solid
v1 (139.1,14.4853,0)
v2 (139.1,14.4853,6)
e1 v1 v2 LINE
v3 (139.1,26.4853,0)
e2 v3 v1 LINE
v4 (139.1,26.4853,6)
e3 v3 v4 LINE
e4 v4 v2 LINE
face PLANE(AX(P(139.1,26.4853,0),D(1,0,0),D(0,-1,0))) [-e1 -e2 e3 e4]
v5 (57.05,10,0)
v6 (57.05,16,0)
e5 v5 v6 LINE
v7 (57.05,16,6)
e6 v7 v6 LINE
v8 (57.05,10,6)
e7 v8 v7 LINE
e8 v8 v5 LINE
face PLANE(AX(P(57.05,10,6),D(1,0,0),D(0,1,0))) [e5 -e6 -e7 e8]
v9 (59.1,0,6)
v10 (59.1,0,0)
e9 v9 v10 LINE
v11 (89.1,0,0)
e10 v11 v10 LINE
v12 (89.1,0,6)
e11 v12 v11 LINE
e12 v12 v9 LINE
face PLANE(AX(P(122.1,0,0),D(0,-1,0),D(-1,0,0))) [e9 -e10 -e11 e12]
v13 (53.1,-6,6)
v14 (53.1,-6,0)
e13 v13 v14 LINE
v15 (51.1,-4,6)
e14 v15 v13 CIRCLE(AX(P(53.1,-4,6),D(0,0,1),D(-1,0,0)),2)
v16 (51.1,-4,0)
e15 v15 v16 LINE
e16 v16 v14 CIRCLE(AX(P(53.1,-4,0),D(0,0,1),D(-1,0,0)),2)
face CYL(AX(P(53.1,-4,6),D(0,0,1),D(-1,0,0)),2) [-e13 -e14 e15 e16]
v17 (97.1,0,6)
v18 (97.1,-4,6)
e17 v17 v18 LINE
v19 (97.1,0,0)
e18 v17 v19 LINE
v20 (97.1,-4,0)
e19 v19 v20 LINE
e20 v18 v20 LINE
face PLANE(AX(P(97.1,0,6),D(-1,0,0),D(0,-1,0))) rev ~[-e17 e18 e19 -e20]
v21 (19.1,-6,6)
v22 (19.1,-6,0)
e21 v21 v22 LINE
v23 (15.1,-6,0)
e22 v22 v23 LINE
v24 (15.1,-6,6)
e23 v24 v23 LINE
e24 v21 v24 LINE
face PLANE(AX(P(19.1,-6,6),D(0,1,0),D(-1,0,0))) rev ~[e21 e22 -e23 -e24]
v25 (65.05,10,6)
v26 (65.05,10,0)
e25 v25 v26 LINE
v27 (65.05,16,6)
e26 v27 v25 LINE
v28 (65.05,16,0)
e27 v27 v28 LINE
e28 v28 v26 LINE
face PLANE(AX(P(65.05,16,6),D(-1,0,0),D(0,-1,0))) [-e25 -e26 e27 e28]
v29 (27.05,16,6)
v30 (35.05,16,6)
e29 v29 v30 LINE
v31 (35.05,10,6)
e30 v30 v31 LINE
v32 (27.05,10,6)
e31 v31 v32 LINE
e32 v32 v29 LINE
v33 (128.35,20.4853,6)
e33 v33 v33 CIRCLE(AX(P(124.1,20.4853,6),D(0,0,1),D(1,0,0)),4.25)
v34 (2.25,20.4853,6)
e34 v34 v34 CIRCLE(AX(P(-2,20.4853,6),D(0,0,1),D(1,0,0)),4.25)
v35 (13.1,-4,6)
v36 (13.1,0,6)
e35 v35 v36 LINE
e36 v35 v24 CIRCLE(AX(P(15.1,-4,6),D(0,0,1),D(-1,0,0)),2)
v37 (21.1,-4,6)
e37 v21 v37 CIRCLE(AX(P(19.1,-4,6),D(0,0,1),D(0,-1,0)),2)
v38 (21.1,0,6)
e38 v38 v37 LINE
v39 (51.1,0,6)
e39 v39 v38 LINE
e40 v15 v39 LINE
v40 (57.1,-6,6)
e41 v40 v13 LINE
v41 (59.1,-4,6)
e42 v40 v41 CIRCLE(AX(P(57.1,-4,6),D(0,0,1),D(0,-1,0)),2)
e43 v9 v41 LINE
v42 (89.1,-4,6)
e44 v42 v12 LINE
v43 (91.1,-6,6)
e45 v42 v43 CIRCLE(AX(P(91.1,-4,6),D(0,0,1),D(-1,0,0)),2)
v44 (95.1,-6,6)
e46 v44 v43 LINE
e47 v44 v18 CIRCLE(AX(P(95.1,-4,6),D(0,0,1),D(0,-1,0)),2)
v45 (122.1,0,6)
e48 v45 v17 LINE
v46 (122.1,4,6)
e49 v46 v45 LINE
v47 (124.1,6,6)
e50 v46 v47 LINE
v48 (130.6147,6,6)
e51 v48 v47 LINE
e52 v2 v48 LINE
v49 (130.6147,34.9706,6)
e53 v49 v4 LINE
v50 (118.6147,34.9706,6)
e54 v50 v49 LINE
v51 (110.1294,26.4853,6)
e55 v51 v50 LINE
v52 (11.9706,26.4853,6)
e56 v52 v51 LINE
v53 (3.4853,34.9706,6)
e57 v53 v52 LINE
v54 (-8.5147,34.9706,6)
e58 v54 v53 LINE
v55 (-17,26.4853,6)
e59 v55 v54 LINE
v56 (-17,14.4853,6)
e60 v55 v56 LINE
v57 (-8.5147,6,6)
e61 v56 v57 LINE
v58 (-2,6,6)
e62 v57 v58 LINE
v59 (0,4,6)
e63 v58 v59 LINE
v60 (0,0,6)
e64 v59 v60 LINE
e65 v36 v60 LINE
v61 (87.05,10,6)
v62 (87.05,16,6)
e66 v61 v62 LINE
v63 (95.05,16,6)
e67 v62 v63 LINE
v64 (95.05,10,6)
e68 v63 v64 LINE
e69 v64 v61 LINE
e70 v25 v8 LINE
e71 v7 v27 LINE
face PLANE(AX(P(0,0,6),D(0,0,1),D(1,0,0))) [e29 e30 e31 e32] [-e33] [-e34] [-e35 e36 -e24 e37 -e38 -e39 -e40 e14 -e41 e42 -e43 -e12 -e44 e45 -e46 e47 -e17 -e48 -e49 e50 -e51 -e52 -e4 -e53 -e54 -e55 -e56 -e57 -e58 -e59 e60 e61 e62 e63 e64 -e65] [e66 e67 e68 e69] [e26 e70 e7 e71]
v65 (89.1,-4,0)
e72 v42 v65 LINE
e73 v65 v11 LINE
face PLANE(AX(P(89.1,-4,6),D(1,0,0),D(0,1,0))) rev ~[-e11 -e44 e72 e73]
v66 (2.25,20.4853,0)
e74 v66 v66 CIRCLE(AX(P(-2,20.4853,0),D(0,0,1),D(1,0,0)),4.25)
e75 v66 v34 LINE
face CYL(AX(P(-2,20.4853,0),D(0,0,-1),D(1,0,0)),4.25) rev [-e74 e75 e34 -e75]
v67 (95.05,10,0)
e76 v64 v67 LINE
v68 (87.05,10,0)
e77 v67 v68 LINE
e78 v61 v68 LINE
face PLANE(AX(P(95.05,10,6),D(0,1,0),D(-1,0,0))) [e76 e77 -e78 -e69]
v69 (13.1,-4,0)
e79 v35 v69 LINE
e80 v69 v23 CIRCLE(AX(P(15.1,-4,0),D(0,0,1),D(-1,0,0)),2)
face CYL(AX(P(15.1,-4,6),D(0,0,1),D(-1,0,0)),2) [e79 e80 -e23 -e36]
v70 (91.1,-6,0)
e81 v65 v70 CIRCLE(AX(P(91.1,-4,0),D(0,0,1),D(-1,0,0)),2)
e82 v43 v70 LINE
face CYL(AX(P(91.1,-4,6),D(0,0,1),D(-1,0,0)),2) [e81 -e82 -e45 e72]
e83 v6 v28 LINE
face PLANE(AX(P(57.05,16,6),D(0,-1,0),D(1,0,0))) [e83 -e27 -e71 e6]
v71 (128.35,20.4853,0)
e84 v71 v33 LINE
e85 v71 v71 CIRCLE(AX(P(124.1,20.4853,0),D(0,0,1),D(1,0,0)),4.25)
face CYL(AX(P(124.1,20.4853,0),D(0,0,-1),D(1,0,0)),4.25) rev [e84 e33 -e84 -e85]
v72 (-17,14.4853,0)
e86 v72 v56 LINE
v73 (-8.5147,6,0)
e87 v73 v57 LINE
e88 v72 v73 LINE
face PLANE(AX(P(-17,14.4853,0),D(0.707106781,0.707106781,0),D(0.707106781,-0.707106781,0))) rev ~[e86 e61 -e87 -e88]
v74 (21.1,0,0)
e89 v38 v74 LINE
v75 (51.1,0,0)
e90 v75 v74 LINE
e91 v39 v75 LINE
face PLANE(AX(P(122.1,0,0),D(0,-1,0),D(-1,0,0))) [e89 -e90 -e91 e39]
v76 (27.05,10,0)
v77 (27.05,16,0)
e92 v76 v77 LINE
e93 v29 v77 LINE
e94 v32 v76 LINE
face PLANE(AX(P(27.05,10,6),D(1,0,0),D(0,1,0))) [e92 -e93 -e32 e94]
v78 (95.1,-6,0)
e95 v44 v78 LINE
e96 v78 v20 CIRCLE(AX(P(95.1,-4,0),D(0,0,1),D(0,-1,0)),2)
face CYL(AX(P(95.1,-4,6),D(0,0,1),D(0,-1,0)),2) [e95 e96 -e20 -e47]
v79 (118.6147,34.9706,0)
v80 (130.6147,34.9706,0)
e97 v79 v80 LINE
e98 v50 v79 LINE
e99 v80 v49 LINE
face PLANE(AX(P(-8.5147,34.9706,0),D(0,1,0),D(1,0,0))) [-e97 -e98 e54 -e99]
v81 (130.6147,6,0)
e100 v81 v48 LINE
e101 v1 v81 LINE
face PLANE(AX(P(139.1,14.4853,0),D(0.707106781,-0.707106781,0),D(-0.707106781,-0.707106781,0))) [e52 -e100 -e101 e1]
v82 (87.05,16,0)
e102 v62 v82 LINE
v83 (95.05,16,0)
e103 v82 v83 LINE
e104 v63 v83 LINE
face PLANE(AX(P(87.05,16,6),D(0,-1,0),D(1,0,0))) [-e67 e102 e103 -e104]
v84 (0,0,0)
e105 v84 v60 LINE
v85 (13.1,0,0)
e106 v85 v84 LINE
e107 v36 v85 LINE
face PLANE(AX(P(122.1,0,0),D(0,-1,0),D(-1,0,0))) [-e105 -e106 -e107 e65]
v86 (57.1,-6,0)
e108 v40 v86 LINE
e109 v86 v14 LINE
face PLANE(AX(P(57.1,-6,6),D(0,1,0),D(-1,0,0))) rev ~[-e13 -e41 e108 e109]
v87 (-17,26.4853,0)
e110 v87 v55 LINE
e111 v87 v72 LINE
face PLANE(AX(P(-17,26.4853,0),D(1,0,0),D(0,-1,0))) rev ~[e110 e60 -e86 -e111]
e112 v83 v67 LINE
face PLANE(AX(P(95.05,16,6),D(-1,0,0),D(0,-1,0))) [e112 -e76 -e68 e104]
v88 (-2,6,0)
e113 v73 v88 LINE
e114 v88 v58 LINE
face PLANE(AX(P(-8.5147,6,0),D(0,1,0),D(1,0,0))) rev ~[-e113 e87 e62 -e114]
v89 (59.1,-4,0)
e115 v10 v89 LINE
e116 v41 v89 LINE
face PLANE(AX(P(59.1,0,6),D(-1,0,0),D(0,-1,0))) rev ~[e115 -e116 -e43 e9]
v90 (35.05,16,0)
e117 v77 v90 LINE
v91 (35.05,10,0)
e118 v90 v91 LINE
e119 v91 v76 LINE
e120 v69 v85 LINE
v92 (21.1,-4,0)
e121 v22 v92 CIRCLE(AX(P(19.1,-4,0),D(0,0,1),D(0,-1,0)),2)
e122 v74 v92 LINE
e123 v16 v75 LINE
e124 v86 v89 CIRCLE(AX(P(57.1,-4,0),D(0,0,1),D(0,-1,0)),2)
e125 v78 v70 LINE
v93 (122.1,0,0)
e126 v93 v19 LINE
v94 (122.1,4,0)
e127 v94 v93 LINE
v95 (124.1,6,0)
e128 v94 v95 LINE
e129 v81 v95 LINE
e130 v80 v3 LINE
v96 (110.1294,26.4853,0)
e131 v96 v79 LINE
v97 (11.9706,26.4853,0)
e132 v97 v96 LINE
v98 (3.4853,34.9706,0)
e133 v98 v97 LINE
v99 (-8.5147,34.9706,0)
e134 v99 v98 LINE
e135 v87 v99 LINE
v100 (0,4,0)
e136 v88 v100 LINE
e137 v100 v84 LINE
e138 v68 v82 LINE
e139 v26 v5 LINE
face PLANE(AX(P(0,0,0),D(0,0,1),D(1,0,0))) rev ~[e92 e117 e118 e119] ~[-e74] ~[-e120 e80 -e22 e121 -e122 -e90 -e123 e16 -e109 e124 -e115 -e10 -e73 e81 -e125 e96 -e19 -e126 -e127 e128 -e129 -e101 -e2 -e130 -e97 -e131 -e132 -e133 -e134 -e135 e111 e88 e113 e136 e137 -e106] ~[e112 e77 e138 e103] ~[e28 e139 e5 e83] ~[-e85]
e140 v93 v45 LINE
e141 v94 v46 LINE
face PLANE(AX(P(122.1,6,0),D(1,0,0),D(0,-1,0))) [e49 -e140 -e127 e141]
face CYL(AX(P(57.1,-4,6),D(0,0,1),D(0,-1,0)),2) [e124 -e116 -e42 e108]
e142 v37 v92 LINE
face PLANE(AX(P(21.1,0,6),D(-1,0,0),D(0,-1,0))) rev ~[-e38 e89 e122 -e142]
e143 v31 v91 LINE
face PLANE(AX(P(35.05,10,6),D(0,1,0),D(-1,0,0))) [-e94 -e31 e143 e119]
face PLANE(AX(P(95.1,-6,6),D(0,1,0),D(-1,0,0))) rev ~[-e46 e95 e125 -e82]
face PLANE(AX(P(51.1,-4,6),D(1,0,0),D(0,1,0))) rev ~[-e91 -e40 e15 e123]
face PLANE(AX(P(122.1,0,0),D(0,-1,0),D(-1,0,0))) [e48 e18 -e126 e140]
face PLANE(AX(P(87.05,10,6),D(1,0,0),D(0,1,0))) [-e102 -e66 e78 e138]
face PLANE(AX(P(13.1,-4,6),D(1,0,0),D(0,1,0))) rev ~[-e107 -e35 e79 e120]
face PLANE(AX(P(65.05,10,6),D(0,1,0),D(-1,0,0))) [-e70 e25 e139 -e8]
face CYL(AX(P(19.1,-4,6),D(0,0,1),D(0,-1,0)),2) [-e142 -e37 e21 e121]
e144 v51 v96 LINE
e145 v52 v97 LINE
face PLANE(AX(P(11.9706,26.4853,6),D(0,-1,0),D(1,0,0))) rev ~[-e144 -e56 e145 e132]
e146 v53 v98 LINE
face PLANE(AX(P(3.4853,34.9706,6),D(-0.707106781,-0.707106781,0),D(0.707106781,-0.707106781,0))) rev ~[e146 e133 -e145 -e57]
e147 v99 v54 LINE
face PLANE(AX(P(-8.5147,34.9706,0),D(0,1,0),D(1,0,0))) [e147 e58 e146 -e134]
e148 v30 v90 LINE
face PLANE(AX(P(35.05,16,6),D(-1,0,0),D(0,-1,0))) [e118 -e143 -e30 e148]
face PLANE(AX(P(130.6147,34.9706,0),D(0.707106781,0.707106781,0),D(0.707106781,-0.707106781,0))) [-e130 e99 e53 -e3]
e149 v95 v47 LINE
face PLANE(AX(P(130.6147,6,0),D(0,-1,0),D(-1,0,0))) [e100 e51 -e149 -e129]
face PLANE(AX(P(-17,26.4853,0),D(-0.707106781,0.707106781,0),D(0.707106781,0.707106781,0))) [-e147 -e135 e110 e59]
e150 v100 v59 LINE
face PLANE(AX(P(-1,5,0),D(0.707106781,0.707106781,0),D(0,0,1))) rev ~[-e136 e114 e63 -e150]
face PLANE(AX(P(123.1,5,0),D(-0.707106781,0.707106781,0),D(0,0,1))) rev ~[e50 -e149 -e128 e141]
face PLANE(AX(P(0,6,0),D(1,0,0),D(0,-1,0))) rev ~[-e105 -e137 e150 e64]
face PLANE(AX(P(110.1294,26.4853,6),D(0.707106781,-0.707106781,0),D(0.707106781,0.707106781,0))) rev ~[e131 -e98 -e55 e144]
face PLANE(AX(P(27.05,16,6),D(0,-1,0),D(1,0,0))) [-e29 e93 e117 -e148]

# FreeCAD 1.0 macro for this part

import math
import FreeCAD as App
import Part
import Sketcher
from FreeCAD import Vector
Q = App.Units.Quantity


def edges_at(feature, points):
    """Names of the edges that pass closest to the given points."""
    edges = feature.Shape.Edges
    near = lambda p: min(range(len(edges)), key=lambda i: edges[i].distToShape(Part.Vertex(*p))[0])
    return sorted({f"Edge{near(p) + 1}" for p in points})


def add_polygon(sketch, points):
    """Adds a closed chain of lines whose ends are joined by coincident constraints."""
    first, n = sketch.GeometryCount, len(points)
    for a, b in zip(points, points[1:] + points[:1]):
        sketch.addGeometry(Part.LineSegment(App.Vector(*a, 0), App.Vector(*b, 0)), False)
    for i in range(n):
        sketch.addConstraint(Sketcher.Constraint("Coincident", first + i, 2, first + (i + 1) % n, 1))

doc = App.newDocument("Part")
body = doc.addObject("PartDesign::Body", "Body")

sketch1 = doc.addObject("Sketcher::SketchObject", "Sketch")
body.addObject(sketch1)
sketch1.AttachmentSupport = (doc.XY_Plane, [""])
sketch1.MapMode = "FlatFace"
add_polygon(sketch1, [(-8.5, 35), (-17, 26.5), (-17, 14.5), (-8.5, 6), (0, 6), (0, 0), (122.1, 0), (122.1, 6), (130.6, 6), (139.1, 14.5), (139.1, 26.5), (130.6, 35)])
sketch1.addGeometry(Part.Circle(Vector(-2, 20.5, 0), Vector(0, 0, 1), 4.2), False)
sketch1.addGeometry(Part.Circle(Vector(124.1, 20.5, 0), Vector(0, 0, 1), 4.2), False)
sketch1.addConstraint(Sketcher.Constraint("Vertical", 1))
sketch1.addConstraint(Sketcher.Constraint("Horizontal", 3))
sketch1.addConstraint(Sketcher.Constraint("Vertical", 4))
sketch1.addConstraint(Sketcher.Constraint("Horizontal", 5))
sketch1.addConstraint(Sketcher.Constraint("Vertical", 6))
sketch1.addConstraint(Sketcher.Constraint("Horizontal", 7))
sketch1.addConstraint(Sketcher.Constraint("Vertical", 9))
sketch1.addConstraint(Sketcher.Constraint("Horizontal", 11))
sketch1.addConstraint(Sketcher.Constraint("Coincident", 4, 2, -1, 1))
sketch1.addConstraint(Sketcher.Constraint("Equal", 12, 13))
sketch1.addConstraint(Sketcher.Constraint("Perpendicular", 0, 2))
sketch1.addConstraint(Sketcher.Constraint("Perpendicular", 2, 8))
sketch1.addConstraint(Sketcher.Constraint("Perpendicular", 8, 10))
sketch1.addConstraint(Sketcher.Constraint("Horizontal", 12, 3, 13, 3))
sketch1.addConstraint(Sketcher.Constraint("Horizontal", 3, 2, 6, 2))
sketch1.addConstraint(Sketcher.Constraint("Horizontal", 1, 2, 8, 2))
sketch1.addConstraint(Sketcher.Constraint("Horizontal", 0, 2, 9, 2))
sketch1.addConstraint(Sketcher.Constraint("Vertical", 7, 2, 10, 2))
sketch1.addConstraint(Sketcher.Constraint("Vertical", 2, 2, 11, 2))
sketch1.addConstraint(Sketcher.Constraint("Equal", 3, 7))
sketch1.addConstraint(Sketcher.Constraint("Diameter", 12, Q("8.5 mm")))
sketch1.addConstraint(Sketcher.Constraint("DistanceY", 1, 2, 1, 1, Q("12 mm")))
sketch1.addConstraint(Sketcher.Constraint("DistanceY", 4, 2, 4, 1, Q("6 mm")))
sketch1.addConstraint(Sketcher.Constraint("Distance", 0, Q("12 mm")))
sketch1.addConstraint(Sketcher.Constraint("DistanceX", 12, 3, -1, 1, Q("2 mm")))
sketch1.addConstraint(Sketcher.Constraint("DistanceX", 0, 2, 12, 3, Q("15 mm")))
sketch1.addConstraint(Sketcher.Constraint("DistanceY", 12, 3, 0, 2, Q("6 mm")))
sketch1.addConstraint(Sketcher.Constraint("DistanceX", 5, 2, 13, 3, Q("2 mm")))
sketch1.addConstraint(Sketcher.Constraint("DistanceX", 12, 3, 13, 3, Q("126.1 mm")))
pad1 = doc.addObject("PartDesign::Pad", "Pad")
body.addObject(pad1)
pad1.Profile = sketch1
pad1.Length = 6

sketch2 = doc.addObject("Sketcher::SketchObject", "Sketch001")
body.addObject(sketch2)
sketch2.AttachmentSupport = (doc.XY_Plane, [""])
sketch2.MapMode = "FlatFace"
sketch2.AttachmentOffset = App.Placement(Vector(0, 0, 6), App.Rotation())
add_polygon(sketch2, [(110, 26), (119, 35), (3, 35), (12, 26)])
sketch2.addConstraint(Sketcher.Constraint("Horizontal", 1))
sketch2.addConstraint(Sketcher.Constraint("Horizontal", 3))
sketch2.addConstraint(Sketcher.Constraint("Perpendicular", 0, 2))
sketch2.addConstraint(Sketcher.Constraint("Equal", 0, 2))
sketch2.addConstraint(Sketcher.Constraint("Distance", 0, Q("12 mm")))
sketch2.addConstraint(Sketcher.Constraint("DistanceX", 1, 2, 1, 1, Q("115.1294 mm")))
sketch2.addConstraint(Sketcher.Constraint("DistanceX", -1, 1, 0, 2, Q("118.6147 mm")))
sketch2.addConstraint(Sketcher.Constraint("DistanceY", -1, 1, 0, 2, Q("34.9706 mm")))
pocket1 = doc.addObject("PartDesign::Pocket", "Pocket")
body.addObject(pocket1)
pocket1.Profile = sketch2
pocket1.Length = 6

sketch3 = doc.addObject("Sketcher::SketchObject", "Sketch002")
body.addObject(sketch3)
sketch3.AttachmentSupport = (doc.XY_Plane, [""])
sketch3.MapMode = "FlatFace"
sketch3.AttachmentOffset = App.Placement(Vector(0, 0, 6), App.Rotation())
add_polygon(sketch3, [(65, 16), (57, 16), (57, 10), (65, 10)])
add_polygon(sketch3, [(35, 16), (27, 16), (27, 10), (35, 10)])
add_polygon(sketch3, [(95, 16), (87, 16), (87, 10), (95, 10)])
sketch3.addConstraint(Sketcher.Constraint("Horizontal", 0))
sketch3.addConstraint(Sketcher.Constraint("Vertical", 1))
sketch3.addConstraint(Sketcher.Constraint("Horizontal", 2))
sketch3.addConstraint(Sketcher.Constraint("Vertical", 3))
sketch3.addConstraint(Sketcher.Constraint("Horizontal", 4))
sketch3.addConstraint(Sketcher.Constraint("Vertical", 5))
sketch3.addConstraint(Sketcher.Constraint("Horizontal", 6))
sketch3.addConstraint(Sketcher.Constraint("Vertical", 7))
sketch3.addConstraint(Sketcher.Constraint("Horizontal", 8))
sketch3.addConstraint(Sketcher.Constraint("Vertical", 9))
sketch3.addConstraint(Sketcher.Constraint("Horizontal", 10))
sketch3.addConstraint(Sketcher.Constraint("Vertical", 11))
sketch3.addConstraint(Sketcher.Constraint("Horizontal", 3, 2, 4, 2))
sketch3.addConstraint(Sketcher.Constraint("Horizontal", 2, 2, 5, 2))
sketch3.addConstraint(Sketcher.Constraint("Horizontal", 7, 2, 8, 2))
sketch3.addConstraint(Sketcher.Constraint("Horizontal", 6, 2, 9, 2))
sketch3.addConstraint(Sketcher.Constraint("Equal", 2, 4))
sketch3.addConstraint(Sketcher.Constraint("Equal", 6, 8))
sketch3.addConstraint(Sketcher.Constraint("DistanceX", 0, 2, 0, 1, Q("8 mm")))
sketch3.addConstraint(Sketcher.Constraint("DistanceY", 1, 2, 1, 1, Q("6 mm")))
sketch3.addConstraint(Sketcher.Constraint("DistanceY", -1, 1, 1, 2, Q("10 mm")))
sketch3.addConstraint(Sketcher.Constraint("DistanceX", 6, 2, 1, 2, Q("22 mm")))
sketch3.addConstraint(Sketcher.Constraint("DistanceX", 3, 2, 8, 2, Q("22 mm")))
sketch3.addConstraint(Sketcher.Constraint("DistanceX", -1, 1, 0, 2, Q("57.05 mm")))
pocket2 = doc.addObject("PartDesign::Pocket", "Pocket001")
body.addObject(pocket2)
pocket2.Profile = sketch3
pocket2.Type = "ThroughAll"

sketch4 = doc.addObject("Sketcher::SketchObject", "Sketch003")
body.addObject(sketch4)
sketch4.AttachmentSupport = (doc.XY_Plane, [""])
sketch4.MapMode = "FlatFace"
sketch4.AttachmentOffset = App.Placement(Vector(0, 0, 6), App.Rotation())
sketch4.addGeometry(Part.LineSegment(Vector(97.1, 0, 0), Vector(89.1, 0, 0)), False)
sketch4.addGeometry(Part.LineSegment(Vector(89.1, 0, 0), Vector(89.1, -4, 0)), False)
sketch4.addGeometry(Part.ArcOfCircle(Part.Circle(Vector(91.1, -4, 0), Vector(0, 0, 1), 2), math.radians(180), math.radians(270)), False)
sketch4.addGeometry(Part.LineSegment(Vector(91.1, -6, 0), Vector(95.1, -6, 0)), False)
sketch4.addGeometry(Part.ArcOfCircle(Part.Circle(Vector(95.1, -4, 0), Vector(0, 0, 1), 2), math.radians(-90), math.radians(0)), False)
sketch4.addGeometry(Part.LineSegment(Vector(97.1, -4, 0), Vector(97.1, 0, 0)), False)
sketch4.addGeometry(Part.LineSegment(Vector(59.1, 0, 0), Vector(51.1, 0, 0)), False)
sketch4.addGeometry(Part.LineSegment(Vector(51.1, 0, 0), Vector(51.1, -4, 0)), False)
sketch4.addGeometry(Part.ArcOfCircle(Part.Circle(Vector(53.1, -4, 0), Vector(0, 0, 1), 2), math.radians(180), math.radians(270)), False)
sketch4.addGeometry(Part.LineSegment(Vector(53.1, -6, 0), Vector(57.1, -6, 0)), False)
sketch4.addGeometry(Part.ArcOfCircle(Part.Circle(Vector(57.1, -4, 0), Vector(0, 0, 1), 2), math.radians(-90), math.radians(0)), False)
sketch4.addGeometry(Part.LineSegment(Vector(59.1, -4, 0), Vector(59.1, 0, 0)), False)
sketch4.addGeometry(Part.LineSegment(Vector(21.1, 0, 0), Vector(13.1, 0, 0)), False)
sketch4.addGeometry(Part.LineSegment(Vector(13.1, 0, 0), Vector(13.1, -4, 0)), False)
sketch4.addGeometry(Part.ArcOfCircle(Part.Circle(Vector(15.1, -4, 0), Vector(0, 0, 1), 2), math.radians(180), math.radians(270)), False)
sketch4.addGeometry(Part.LineSegment(Vector(15.1, -6, 0), Vector(19.1, -6, 0)), False)
sketch4.addGeometry(Part.ArcOfCircle(Part.Circle(Vector(19.1, -4, 0), Vector(0, 0, 1), 2), math.radians(-90), math.radians(0)), False)
sketch4.addGeometry(Part.LineSegment(Vector(21.1, -4, 0), Vector(21.1, 0, 0)), False)
sketch4.addConstraint(Sketcher.Constraint("Coincident", 0, 2, 1, 1))
sketch4.addConstraint(Sketcher.Constraint("Tangent", 1, 2, 2, 1))
sketch4.addConstraint(Sketcher.Constraint("Tangent", 2, 2, 3, 1))
sketch4.addConstraint(Sketcher.Constraint("Tangent", 3, 2, 4, 1))
sketch4.addConstraint(Sketcher.Constraint("Tangent", 4, 2, 5, 1))
sketch4.addConstraint(Sketcher.Constraint("Coincident", 5, 2, 0, 1))
sketch4.addConstraint(Sketcher.Constraint("Coincident", 6, 2, 7, 1))
sketch4.addConstraint(Sketcher.Constraint("Tangent", 7, 2, 8, 1))
sketch4.addConstraint(Sketcher.Constraint("Tangent", 8, 2, 9, 1))
sketch4.addConstraint(Sketcher.Constraint("Tangent", 9, 2, 10, 1))
sketch4.addConstraint(Sketcher.Constraint("Tangent", 10, 2, 11, 1))
sketch4.addConstraint(Sketcher.Constraint("Coincident", 11, 2, 6, 1))
sketch4.addConstraint(Sketcher.Constraint("Coincident", 12, 2, 13, 1))
sketch4.addConstraint(Sketcher.Constraint("Tangent", 13, 2, 14, 1))
sketch4.addConstraint(Sketcher.Constraint("Tangent", 14, 2, 15, 1))
sketch4.addConstraint(Sketcher.Constraint("Tangent", 15, 2, 16, 1))
sketch4.addConstraint(Sketcher.Constraint("Tangent", 16, 2, 17, 1))
sketch4.addConstraint(Sketcher.Constraint("Coincident", 17, 2, 12, 1))
sketch4.addConstraint(Sketcher.Constraint("Horizontal", 0))
sketch4.addConstraint(Sketcher.Constraint("Vertical", 1))
sketch4.addConstraint(Sketcher.Constraint("Horizontal", 3))
sketch4.addConstraint(Sketcher.Constraint("Vertical", 5))
sketch4.addConstraint(Sketcher.Constraint("Horizontal", 6))
sketch4.addConstraint(Sketcher.Constraint("Vertical", 7))
sketch4.addConstraint(Sketcher.Constraint("Horizontal", 9))
sketch4.addConstraint(Sketcher.Constraint("Vertical", 11))
sketch4.addConstraint(Sketcher.Constraint("Horizontal", 12))
sketch4.addConstraint(Sketcher.Constraint("Vertical", 13))
sketch4.addConstraint(Sketcher.Constraint("Horizontal", 15))
sketch4.addConstraint(Sketcher.Constraint("Vertical", 17))
sketch4.addConstraint(Sketcher.Constraint("Equal", 2, 4))
sketch4.addConstraint(Sketcher.Constraint("Equal", 4, 8))
sketch4.addConstraint(Sketcher.Constraint("Equal", 8, 10))
sketch4.addConstraint(Sketcher.Constraint("Equal", 10, 14))
sketch4.addConstraint(Sketcher.Constraint("Equal", 14, 16))
sketch4.addConstraint(Sketcher.Constraint("PointOnObject", 0, 2, -1))
sketch4.addConstraint(Sketcher.Constraint("PointOnObject", 6, 2, -1))
sketch4.addConstraint(Sketcher.Constraint("PointOnObject", 12, 2, -1))
sketch4.addConstraint(Sketcher.Constraint("Horizontal", 4, 3, 8, 3))
sketch4.addConstraint(Sketcher.Constraint("Horizontal", 10, 3, 14, 3))
sketch4.addConstraint(Sketcher.Constraint("Equal", 0, 6))
sketch4.addConstraint(Sketcher.Constraint("Equal", 6, 12))
sketch4.addConstraint(Sketcher.Constraint("Equal", 15, 1))
sketch4.addConstraint(Sketcher.Constraint("Radius", 2, Q("2 mm")))
sketch4.addConstraint(Sketcher.Constraint("DistanceX", 0, 2, 0, 1, Q("8 mm")))
sketch4.addConstraint(Sketcher.Constraint("DistanceX", 8, 3, 2, 3, Q("38 mm")))
sketch4.addConstraint(Sketcher.Constraint("DistanceX", 14, 3, 8, 3, Q("38 mm")))
sketch4.addConstraint(Sketcher.Constraint("DistanceX", -1, 1, 2, 3, Q("91.1 mm")))
pad2 = doc.addObject("PartDesign::Pad", "Pad001")
body.addObject(pad2)
pad2.Profile = sketch4
pad2.Length = 6
pad2.Reversed = True
doc.recompute()

chamfer = doc.addObject("PartDesign::Chamfer", "Chamfer")
body.addObject(chamfer)
chamfer.Base = (pad2, edges_at(pad2, [(0, 6, 3), (122.1, 6, 3)]))
chamfer.Size = 2

doc.recompute()
